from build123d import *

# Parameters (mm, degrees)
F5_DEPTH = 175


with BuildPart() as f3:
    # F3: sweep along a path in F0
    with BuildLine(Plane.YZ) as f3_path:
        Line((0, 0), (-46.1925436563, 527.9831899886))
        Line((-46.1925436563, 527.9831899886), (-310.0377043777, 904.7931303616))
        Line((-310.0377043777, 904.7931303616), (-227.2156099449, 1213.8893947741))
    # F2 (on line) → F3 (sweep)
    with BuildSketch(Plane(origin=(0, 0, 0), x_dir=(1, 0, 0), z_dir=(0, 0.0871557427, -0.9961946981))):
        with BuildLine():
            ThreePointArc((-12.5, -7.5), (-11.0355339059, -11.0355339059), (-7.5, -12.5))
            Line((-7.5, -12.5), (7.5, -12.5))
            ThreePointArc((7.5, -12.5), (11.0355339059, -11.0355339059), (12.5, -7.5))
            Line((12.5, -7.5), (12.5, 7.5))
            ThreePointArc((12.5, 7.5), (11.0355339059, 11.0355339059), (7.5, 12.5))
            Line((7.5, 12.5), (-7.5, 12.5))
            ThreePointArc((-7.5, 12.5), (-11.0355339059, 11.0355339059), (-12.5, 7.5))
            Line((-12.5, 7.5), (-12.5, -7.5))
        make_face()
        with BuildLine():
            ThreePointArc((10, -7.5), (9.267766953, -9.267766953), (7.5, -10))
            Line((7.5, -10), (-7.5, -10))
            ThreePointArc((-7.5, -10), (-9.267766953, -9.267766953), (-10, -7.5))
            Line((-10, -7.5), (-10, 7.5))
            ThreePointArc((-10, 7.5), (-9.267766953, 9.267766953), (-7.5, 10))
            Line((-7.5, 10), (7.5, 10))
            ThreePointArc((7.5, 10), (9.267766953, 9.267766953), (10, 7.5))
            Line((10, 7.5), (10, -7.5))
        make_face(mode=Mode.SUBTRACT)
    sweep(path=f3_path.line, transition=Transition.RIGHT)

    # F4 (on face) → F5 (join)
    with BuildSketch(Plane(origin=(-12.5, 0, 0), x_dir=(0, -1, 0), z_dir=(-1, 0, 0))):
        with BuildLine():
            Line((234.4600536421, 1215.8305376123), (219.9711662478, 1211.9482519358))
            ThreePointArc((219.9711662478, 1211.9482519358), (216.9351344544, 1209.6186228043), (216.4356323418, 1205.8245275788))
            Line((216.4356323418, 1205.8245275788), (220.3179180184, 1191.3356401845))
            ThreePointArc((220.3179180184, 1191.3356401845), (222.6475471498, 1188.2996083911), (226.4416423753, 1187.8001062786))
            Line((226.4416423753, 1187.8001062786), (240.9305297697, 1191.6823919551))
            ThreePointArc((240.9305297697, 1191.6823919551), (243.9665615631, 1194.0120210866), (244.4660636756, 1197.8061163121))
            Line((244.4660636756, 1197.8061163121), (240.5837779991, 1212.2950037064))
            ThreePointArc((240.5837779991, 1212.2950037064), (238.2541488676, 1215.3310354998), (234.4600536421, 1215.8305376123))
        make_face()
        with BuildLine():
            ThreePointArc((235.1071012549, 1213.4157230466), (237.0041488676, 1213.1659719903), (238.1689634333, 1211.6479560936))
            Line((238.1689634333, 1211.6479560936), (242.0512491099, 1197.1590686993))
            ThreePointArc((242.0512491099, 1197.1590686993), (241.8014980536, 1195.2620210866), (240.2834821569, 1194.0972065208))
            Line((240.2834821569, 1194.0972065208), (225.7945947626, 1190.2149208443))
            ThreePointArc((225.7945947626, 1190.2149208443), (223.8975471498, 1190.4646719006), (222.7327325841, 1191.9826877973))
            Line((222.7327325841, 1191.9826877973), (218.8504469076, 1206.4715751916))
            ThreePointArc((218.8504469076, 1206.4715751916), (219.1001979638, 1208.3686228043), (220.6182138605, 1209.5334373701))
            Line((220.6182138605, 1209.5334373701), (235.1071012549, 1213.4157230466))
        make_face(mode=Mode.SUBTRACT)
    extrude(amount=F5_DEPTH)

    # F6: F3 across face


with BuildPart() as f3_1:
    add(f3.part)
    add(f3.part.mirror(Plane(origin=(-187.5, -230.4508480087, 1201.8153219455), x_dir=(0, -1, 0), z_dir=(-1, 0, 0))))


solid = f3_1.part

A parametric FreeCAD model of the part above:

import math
import FreeCAD as App
import Part
import Sketcher

V = App.Vector
Q = App.Units.Quantity

doc = App.newDocument("Part")
params = doc.addObject("Spreadsheet::Sheet", "Params")
for row, (alias, value) in enumerate([
    ("sketch1_radius", "5 mm"),
    ("sketch1_radius2", "2.5 mm"),
    ("sketch1_width", "15 mm"),
    ("sketch2_length", "530 mm"),
    ("sketch2_length2", "460 mm"),
    ("sketch2_length3", "320 mm"),
    ("sketch3_radius", "5 mm"),
    ("sketch3_radius2", "2.5 mm"),
    ("sketch3_length", "15 mm"),
    ("pad1_length", "175 mm"),
], start=1):
    params.set(f"A{row}", alias)
    params.set(f"B{row}", "=" + value)
    params.setAlias(f"B{row}", alias)

body = doc.addObject("PartDesign::Body", "Body")

sketch1 = doc.addObject("Sketcher::SketchObject", "Sketch")
body.addObject(sketch1)
sketch1.Placement = App.Placement(V(0, 0, 0), App.Rotation(V(1, 0, 0), V(0, -0.996194698, -0.087155743), V(0, 0.087155743, -0.996194698), "ZXY"))
sketch1.addGeometry(Part.ArcOfCircle(Part.Circle(V(-7.5, -7.5, 0), V(0, 0, 1), 5), math.radians(180), math.radians(270)), False)
sketch1.addGeometry(Part.LineSegment(V(-7.5, -12.5, 0), V(7.5, -12.5, 0)), False)
sketch1.addGeometry(Part.ArcOfCircle(Part.Circle(V(7.5, -7.5, 0), V(0, 0, 1), 5), math.radians(-90), math.radians(0)), False)
sketch1.addGeometry(Part.LineSegment(V(12.5, -7.5, 0), V(12.5, 7.5, 0)), False)
sketch1.addGeometry(Part.ArcOfCircle(Part.Circle(V(7.5, 7.5, 0), V(0, 0, 1), 5), math.radians(0), math.radians(90)), False)
sketch1.addGeometry(Part.LineSegment(V(7.5, 12.5, 0), V(-7.5, 12.5, 0)), False)
sketch1.addGeometry(Part.ArcOfCircle(Part.Circle(V(-7.5, 7.5, 0), V(0, 0, 1), 5), math.radians(90), math.radians(180)), False)
sketch1.addGeometry(Part.LineSegment(V(-12.5, 7.5, 0), V(-12.5, -7.5, 0)), False)
sketch1.addGeometry(Part.LineSegment(V(10, 7.5, 0), V(10, -7.5, 0)), False)
sketch1.addGeometry(Part.ArcOfCircle(Part.Circle(V(7.5, -7.5, 0), V(0, 0, 1), 2.5), math.radians(-90), math.radians(0)), False)
sketch1.addGeometry(Part.LineSegment(V(7.5, -10, 0), V(-7.5, -10, 0)), False)
sketch1.addGeometry(Part.ArcOfCircle(Part.Circle(V(-7.5, -7.5, 0), V(0, 0, 1), 2.5), math.radians(180), math.radians(270)), False)
sketch1.addGeometry(Part.LineSegment(V(-10, -7.5, 0), V(-10, 7.5, 0)), False)
sketch1.addGeometry(Part.ArcOfCircle(Part.Circle(V(-7.5, 7.5, 0), V(0, 0, 1), 2.5), math.radians(90), math.radians(180)), False)
sketch1.addGeometry(Part.LineSegment(V(-7.5, 10, 0), V(7.5, 10, 0)), False)
sketch1.addGeometry(Part.ArcOfCircle(Part.Circle(V(7.5, 7.5, 0), V(0, 0, 1), 2.5), math.radians(0), math.radians(90)), False)
sketch1.addConstraint(Sketcher.Constraint("Tangent", 0, 2, 1, 1))
sketch1.addConstraint(Sketcher.Constraint("Tangent", 1, 2, 2, 1))
sketch1.addConstraint(Sketcher.Constraint("Tangent", 2, 2, 3, 1))
sketch1.addConstraint(Sketcher.Constraint("Tangent", 3, 2, 4, 1))
sketch1.addConstraint(Sketcher.Constraint("Tangent", 4, 2, 5, 1))
sketch1.addConstraint(Sketcher.Constraint("Tangent", 5, 2, 6, 1))
sketch1.addConstraint(Sketcher.Constraint("Tangent", 6, 2, 7, 1))
sketch1.addConstraint(Sketcher.Constraint("Tangent", 7, 2, 0, 1))
sketch1.addConstraint(Sketcher.Constraint("Tangent", 8, 2, 9, 2))
sketch1.addConstraint(Sketcher.Constraint("Tangent", 9, 1, 10, 1))
sketch1.addConstraint(Sketcher.Constraint("Tangent", 10, 2, 11, 2))
sketch1.addConstraint(Sketcher.Constraint("Tangent", 11, 1, 12, 1))
sketch1.addConstraint(Sketcher.Constraint("Tangent", 12, 2, 13, 2))
sketch1.addConstraint(Sketcher.Constraint("Tangent", 13, 1, 14, 1))
sketch1.addConstraint(Sketcher.Constraint("Tangent", 14, 2, 15, 2))
sketch1.addConstraint(Sketcher.Constraint("Tangent", 15, 1, 8, 1))
sketch1.addConstraint(Sketcher.Constraint("Horizontal", 1))
sketch1.addConstraint(Sketcher.Constraint("Vertical", 3))
sketch1.addConstraint(Sketcher.Constraint("Horizontal", 5))
sketch1.addConstraint(Sketcher.Constraint("Vertical", 7))
sketch1.addConstraint(Sketcher.Constraint("Vertical", 8))
sketch1.addConstraint(Sketcher.Constraint("Horizontal", 10))
sketch1.addConstraint(Sketcher.Constraint("Vertical", 12))
sketch1.addConstraint(Sketcher.Constraint("Horizontal", 14))
sketch1.addConstraint(Sketcher.Constraint("Coincident", 9, 3, 2, 3))
sketch1.addConstraint(Sketcher.Constraint("Coincident", 11, 3, 0, 3))
sketch1.addConstraint(Sketcher.Constraint("Coincident", 13, 3, 6, 3))
sketch1.addConstraint(Sketcher.Constraint("Equal", 0, 2))
sketch1.addConstraint(Sketcher.Constraint("Equal", 2, 4))
sketch1.addConstraint(Sketcher.Constraint("Equal", 4, 6))
sketch1.addConstraint(Sketcher.Constraint("Equal", 13, 15))
sketch1.addConstraint(Sketcher.Constraint("Symmetric", 0, 3, 4, 3, -1, 1))
sketch1.addConstraint(Sketcher.Constraint("Equal", 14, 3))
sketch1.addConstraint(Sketcher.Constraint("Radius", 0, 5.0))
sketch1.addConstraint(Sketcher.Constraint("Radius", 9, 2.5))
sketch1.addConstraint(Sketcher.Constraint("DistanceX", 1, 1, 1, 2, 15.0))
sketch1.setExpression("Constraints[33]", "Params.sketch1_radius")
sketch1.setExpression("Constraints[34]", "Params.sketch1_radius2")
sketch1.setExpression("Constraints[35]", "Params.sketch1_width")

sketch2 = doc.addObject("Sketcher::SketchObject", "Sketch001")
body.addObject(sketch2)
sketch2.AttachmentSupport = (doc.YZ_Plane, [""])
sketch2.MapMode = "FlatFace"
sketch2.addGeometry(Part.LineSegment(V(0, 0, 0), V(-46, 528, 0)), False)
sketch2.addGeometry(Part.LineSegment(V(-46, 528, 0), V(-310, 905, 0)), False)
sketch2.addGeometry(Part.LineSegment(V(-310, 905, 0), V(-227, 1214, 0)), False)
sketch2.addConstraint(Sketcher.Constraint("Coincident", 0, 2, 1, 1))
sketch2.addConstraint(Sketcher.Constraint("Coincident", 1, 2, 2, 1))
sketch2.addConstraint(Sketcher.Constraint("Coincident", 0, 1, -1, 1))
sketch2.addConstraint(Sketcher.Constraint("Angle", 0, Q("95 deg")))
sketch2.addConstraint(Sketcher.Constraint("Angle", 1, Q("125 deg")))
sketch2.addConstraint(Sketcher.Constraint("Angle", 2, Q("75 deg")))
sketch2.addConstraint(Sketcher.Constraint("Distance", 0, 530.0))
sketch2.addConstraint(Sketcher.Constraint("Distance", 1, 460.0))
sketch2.addConstraint(Sketcher.Constraint("Distance", 2, 320.0))
sketch2.setExpression("Constraints[6]", "Params.sketch2_length")
sketch2.setExpression("Constraints[7]", "Params.sketch2_length2")
sketch2.setExpression("Constraints[8]", "Params.sketch2_length3")
doc.recompute()

additivepipe = doc.addObject("PartDesign::AdditivePipe", "AdditivePipe")
body.addObject(additivepipe)
additivepipe.Profile = sketch1
additivepipe.Spine = (sketch2, ["Edge1", "Edge2", "Edge3"])
additivepipe.Transition = "Right corner"

sketch3 = doc.addObject("Sketcher::SketchObject", "Sketch002")
body.addObject(sketch3)
sketch3.AttachmentSupport = (doc.YZ_Plane, [""])
sketch3.MapMode = "FlatFace"
sketch3.AttachmentOffset = App.Placement(V(0, 0, -12.5), App.Rotation())
sketch3.addGeometry(Part.LineSegment(V(-234.5, 1215.8, 0), V(-220, 1211.9, 0)), False)
sketch3.addGeometry(Part.ArcOfCircle(Part.Circle(V(-221.3, 1207.1, 0), V(0, 0, 1), 5), math.radians(-15), math.radians(75)), False)
sketch3.addGeometry(Part.LineSegment(V(-216.4, 1205.8, 0), V(-220.3, 1191.3, 0)), False)
sketch3.addGeometry(Part.ArcOfCircle(Part.Circle(V(-225.1, 1192.6, 0), V(0, 0, 1), 5), math.radians(-105), math.radians(-15)), False)
sketch3.addGeometry(Part.LineSegment(V(-226.4, 1187.8, 0), V(-240.9, 1191.7, 0)), False)
sketch3.addGeometry(Part.ArcOfCircle(Part.Circle(V(-239.6, 1196.5, 0), V(0, 0, 1), 5), math.radians(165), math.radians(255)), False)
sketch3.addGeometry(Part.LineSegment(V(-244.5, 1197.8, 0), V(-240.6, 1212.3, 0)), False)
sketch3.addGeometry(Part.ArcOfCircle(Part.Circle(V(-235.8, 1211, 0), V(0, 0, 1), 5), math.radians(75), math.radians(165)), False)
sketch3.addGeometry(Part.LineSegment(V(-220.6, 1209.5, 0), V(-235.1, 1213.4, 0)), False)
sketch3.addGeometry(Part.ArcOfCircle(Part.Circle(V(-235.8, 1211, 0), V(0, 0, 1), 2.5), math.radians(75), math.radians(165)), False)
sketch3.addGeometry(Part.LineSegment(V(-238.2, 1211.6, 0), V(-242.1, 1197.2, 0)), False)
sketch3.addGeometry(Part.ArcOfCircle(Part.Circle(V(-239.6, 1196.5, 0), V(0, 0, 1), 2.5), math.radians(165), math.radians(255)), False)
sketch3.addGeometry(Part.LineSegment(V(-240.3, 1194.1, 0), V(-225.8, 1190.2, 0)), False)
sketch3.addGeometry(Part.ArcOfCircle(Part.Circle(V(-225.1, 1192.6, 0), V(0, 0, 1), 2.5), math.radians(-105), math.radians(-15)), False)
sketch3.addGeometry(Part.LineSegment(V(-222.7, 1192, 0), V(-218.9, 1206.5, 0)), False)
sketch3.addGeometry(Part.ArcOfCircle(Part.Circle(V(-221.3, 1207.1, 0), V(0, 0, 1), 2.5), math.radians(-15), math.radians(75)), False)
sketch3.addConstraint(Sketcher.Constraint("Tangent", 0, 2, 1, 2))
sketch3.addConstraint(Sketcher.Constraint("Tangent", 1, 1, 2, 1))
sketch3.addConstraint(Sketcher.Constraint("Tangent", 2, 2, 3, 2))
sketch3.addConstraint(Sketcher.Constraint("Tangent", 3, 1, 4, 1))
sketch3.addConstraint(Sketcher.Constraint("Tangent", 4, 2, 5, 2))
sketch3.addConstraint(Sketcher.Constraint("Tangent", 5, 1, 6, 1))
sketch3.addConstraint(Sketcher.Constraint("Tangent", 6, 2, 7, 2))
sketch3.addConstraint(Sketcher.Constraint("Tangent", 7, 1, 0, 1))
sketch3.addConstraint(Sketcher.Constraint("Tangent", 8, 2, 9, 1))
sketch3.addConstraint(Sketcher.Constraint("Tangent", 9, 2, 10, 1))
sketch3.addConstraint(Sketcher.Constraint("Tangent", 10, 2, 11, 1))
sketch3.addConstraint(Sketcher.Constraint("Tangent", 11, 2, 12, 1))
sketch3.addConstraint(Sketcher.Constraint("Tangent", 12, 2, 13, 1))
sketch3.addConstraint(Sketcher.Constraint("Tangent", 13, 2, 14, 1))
sketch3.addConstraint(Sketcher.Constraint("Tangent", 14, 2, 15, 1))
sketch3.addConstraint(Sketcher.Constraint("Tangent", 15, 2, 8, 1))
sketch3.addConstraint(Sketcher.Constraint("Coincident", 9, 3, 7, 3))
sketch3.addConstraint(Sketcher.Constraint("Coincident", 11, 3, 5, 3))
sketch3.addConstraint(Sketcher.Constraint("Coincident", 13, 3, 3, 3))
sketch3.addConstraint(Sketcher.Constraint("Coincident", 15, 3, 1, 3))
sketch3.addConstraint(Sketcher.Constraint("Equal", 1, 3))
sketch3.addConstraint(Sketcher.Constraint("Equal", 3, 5))
sketch3.addConstraint(Sketcher.Constraint("Equal", 5, 7))
sketch3.addConstraint(Sketcher.Constraint("Equal", 9, 11))
sketch3.addConstraint(Sketcher.Constraint("Equal", 11, 13))
sketch3.addConstraint(Sketcher.Constraint("Equal", 13, 15))
sketch3.addConstraint(Sketcher.Constraint("Perpendicular", 0, 2))
sketch3.addConstraint(Sketcher.Constraint("Perpendicular", 2, 4))
sketch3.addConstraint(Sketcher.Constraint("Perpendicular", 4, 6))
sketch3.addConstraint(Sketcher.Constraint("Equal", 0, 2))
sketch3.addConstraint(Sketcher.Constraint("Radius", 1, 5.0))
sketch3.addConstraint(Sketcher.Constraint("Radius", 9, 2.5))
sketch3.addConstraint(Sketcher.Constraint("Angle", 0, Q("-15 deg")))
sketch3.addConstraint(Sketcher.Constraint("Distance", 0, 15.0))
sketch3.addConstraint(Sketcher.Constraint("DistanceX", 8, 2, -1, 1, 235.107101))
sketch3.addConstraint(Sketcher.Constraint("DistanceY", -1, 1, 5, 3, 1196.512021))
sketch3.setExpression("Constraints[30]", "Params.sketch3_radius")
sketch3.setExpression("Constraints[31]", "Params.sketch3_radius2")
sketch3.setExpression("Constraints[33]", "Params.sketch3_length")
pad1 = doc.addObject("PartDesign::Pad", "Pad")
body.addObject(pad1)
pad1.Profile = sketch3
pad1.setExpression("Length", "Params.pad1_length")
pad1.Reversed = True
body2 = doc.addObject("PartDesign::Body", "Body001")
doc.recompute()

body2.BaseFeature = body
doc.recompute()

mirroring = doc.addObject("Part::Mirroring", "Mirroring")
mirroring.Source = body
mirroring.Base = V(-187.5, -230.450848, 1201.815322)
mirroring.Normal = V(-1, 0, 0)
body3 = doc.addObject("PartDesign::Body", "Body002")
body3.BaseFeature = mirroring
boolean = doc.addObject("PartDesign::Boolean", "Boolean")
body2.addObject(boolean)
boolean.Type = "Fuse"
boolean.addObjects([body3])
doc.recompute()
mirroring.Visibility = False

doc.recompute()
